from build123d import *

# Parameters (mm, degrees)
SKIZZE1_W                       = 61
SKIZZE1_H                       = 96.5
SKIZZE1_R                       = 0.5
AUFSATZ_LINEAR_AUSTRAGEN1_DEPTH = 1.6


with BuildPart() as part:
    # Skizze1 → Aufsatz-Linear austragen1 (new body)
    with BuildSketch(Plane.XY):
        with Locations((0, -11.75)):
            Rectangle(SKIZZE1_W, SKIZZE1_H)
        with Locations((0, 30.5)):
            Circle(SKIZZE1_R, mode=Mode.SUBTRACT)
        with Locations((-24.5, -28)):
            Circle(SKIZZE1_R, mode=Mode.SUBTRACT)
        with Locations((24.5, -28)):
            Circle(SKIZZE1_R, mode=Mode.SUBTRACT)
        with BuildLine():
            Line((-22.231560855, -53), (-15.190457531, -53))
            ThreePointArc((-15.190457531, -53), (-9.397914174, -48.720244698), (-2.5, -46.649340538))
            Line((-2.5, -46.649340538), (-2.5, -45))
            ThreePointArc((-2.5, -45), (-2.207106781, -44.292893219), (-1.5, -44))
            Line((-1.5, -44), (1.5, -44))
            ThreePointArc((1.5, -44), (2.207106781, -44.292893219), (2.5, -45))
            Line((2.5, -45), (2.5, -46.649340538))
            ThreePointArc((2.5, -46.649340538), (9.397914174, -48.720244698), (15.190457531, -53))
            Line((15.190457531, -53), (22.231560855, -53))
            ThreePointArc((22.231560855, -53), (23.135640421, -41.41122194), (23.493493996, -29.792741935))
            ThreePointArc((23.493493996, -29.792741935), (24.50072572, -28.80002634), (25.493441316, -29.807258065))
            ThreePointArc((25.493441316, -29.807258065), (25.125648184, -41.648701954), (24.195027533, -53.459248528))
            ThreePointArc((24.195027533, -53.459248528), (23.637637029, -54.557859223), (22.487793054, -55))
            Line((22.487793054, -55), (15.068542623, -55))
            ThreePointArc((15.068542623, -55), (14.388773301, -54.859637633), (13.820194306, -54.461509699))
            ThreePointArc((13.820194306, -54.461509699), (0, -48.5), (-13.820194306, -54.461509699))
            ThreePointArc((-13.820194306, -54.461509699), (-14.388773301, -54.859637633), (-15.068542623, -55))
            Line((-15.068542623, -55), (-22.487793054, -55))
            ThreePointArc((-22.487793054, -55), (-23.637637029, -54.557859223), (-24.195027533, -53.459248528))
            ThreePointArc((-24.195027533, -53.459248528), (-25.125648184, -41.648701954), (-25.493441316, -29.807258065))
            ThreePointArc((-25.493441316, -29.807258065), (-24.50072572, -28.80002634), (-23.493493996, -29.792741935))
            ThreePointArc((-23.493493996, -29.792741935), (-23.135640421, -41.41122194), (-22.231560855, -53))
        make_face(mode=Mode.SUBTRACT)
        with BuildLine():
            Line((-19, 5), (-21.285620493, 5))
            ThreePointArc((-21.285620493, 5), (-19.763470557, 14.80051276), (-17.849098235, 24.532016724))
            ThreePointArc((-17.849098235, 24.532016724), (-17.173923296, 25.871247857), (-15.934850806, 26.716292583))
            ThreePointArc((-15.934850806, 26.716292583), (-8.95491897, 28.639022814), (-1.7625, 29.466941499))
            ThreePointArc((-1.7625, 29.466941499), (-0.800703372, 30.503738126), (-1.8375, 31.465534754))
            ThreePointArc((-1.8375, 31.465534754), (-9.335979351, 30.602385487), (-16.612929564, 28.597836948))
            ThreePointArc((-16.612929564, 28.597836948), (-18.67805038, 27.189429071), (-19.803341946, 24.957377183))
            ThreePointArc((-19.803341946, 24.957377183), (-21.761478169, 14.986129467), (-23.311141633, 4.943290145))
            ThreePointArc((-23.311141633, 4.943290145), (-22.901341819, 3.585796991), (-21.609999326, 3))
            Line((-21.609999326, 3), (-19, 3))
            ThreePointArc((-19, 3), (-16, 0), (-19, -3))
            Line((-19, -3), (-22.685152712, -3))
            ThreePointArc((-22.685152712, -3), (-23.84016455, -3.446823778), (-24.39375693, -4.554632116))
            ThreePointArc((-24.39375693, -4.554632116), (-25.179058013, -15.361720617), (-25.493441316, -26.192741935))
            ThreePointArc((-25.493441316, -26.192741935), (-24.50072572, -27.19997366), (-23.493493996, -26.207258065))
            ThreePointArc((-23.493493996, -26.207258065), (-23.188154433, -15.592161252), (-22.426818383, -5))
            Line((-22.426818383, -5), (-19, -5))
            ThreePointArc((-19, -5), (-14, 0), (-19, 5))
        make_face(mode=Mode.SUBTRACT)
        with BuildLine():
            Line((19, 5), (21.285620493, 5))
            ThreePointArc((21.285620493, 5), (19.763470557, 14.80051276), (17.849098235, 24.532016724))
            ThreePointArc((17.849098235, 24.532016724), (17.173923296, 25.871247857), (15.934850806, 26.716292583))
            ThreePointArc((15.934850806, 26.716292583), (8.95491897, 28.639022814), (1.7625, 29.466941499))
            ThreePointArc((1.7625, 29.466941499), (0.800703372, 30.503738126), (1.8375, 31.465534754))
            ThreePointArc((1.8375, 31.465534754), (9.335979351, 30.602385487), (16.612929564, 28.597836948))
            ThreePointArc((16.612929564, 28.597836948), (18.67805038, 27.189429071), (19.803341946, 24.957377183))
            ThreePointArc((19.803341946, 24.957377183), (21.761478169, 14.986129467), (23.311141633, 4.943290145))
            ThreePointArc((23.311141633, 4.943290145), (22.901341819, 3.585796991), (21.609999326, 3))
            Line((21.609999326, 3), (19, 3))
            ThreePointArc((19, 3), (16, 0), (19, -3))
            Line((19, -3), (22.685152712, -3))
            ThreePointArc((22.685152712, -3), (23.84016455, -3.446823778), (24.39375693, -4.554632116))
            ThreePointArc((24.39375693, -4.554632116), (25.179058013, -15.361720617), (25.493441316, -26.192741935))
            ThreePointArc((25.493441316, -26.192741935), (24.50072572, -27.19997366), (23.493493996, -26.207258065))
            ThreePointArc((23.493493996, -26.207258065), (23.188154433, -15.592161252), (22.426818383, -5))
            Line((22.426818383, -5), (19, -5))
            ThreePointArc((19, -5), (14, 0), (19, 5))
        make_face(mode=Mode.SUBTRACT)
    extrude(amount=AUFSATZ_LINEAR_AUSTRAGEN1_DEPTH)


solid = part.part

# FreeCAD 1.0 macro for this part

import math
import FreeCAD as App
import Part
import Sketcher


def add_polygon(sketch, points):
    """Adds a closed chain of lines whose ends are joined by coincident constraints."""
    first, n = sketch.GeometryCount, len(points)
    for a, b in zip(points, points[1:] + points[:1]):
        sketch.addGeometry(Part.LineSegment(App.Vector(*a, 0), App.Vector(*b, 0)), False)
    for i in range(n):
        sketch.addConstraint(Sketcher.Constraint("Coincident", first + i, 2, first + (i + 1) % n, 1))

doc = App.newDocument("Part")
body = doc.addObject("PartDesign::Body", "Body")

# Sketch on XY plane
sketch1 = doc.addObject("Sketcher::SketchObject", "Sketch")
body.addObject(sketch1)
sketch1.AttachmentSupport = (doc.XY_Plane, [""])
sketch1.MapMode = "FlatFace"
add_polygon(sketch1, [(-30.5, 36.5), (-30.5, -60), (30.5, -60), (30.5, 36.5)])  # lines 0-3
sketch1.addGeometry(Part.ArcOfCircle(Part.Circle(App.Vector(223.5, -28, 0), App.Vector(0, 0, 1), 247), math.radians(-179.58), math.radians(-174.19)), False)  # 4
sketch1.addGeometry(Part.LineSegment(App.Vector(-22.2, -53, 0), App.Vector(-15.2, -53, 0)), False)  # 5
sketch1.addGeometry(Part.ArcOfCircle(Part.Circle(App.Vector(0, -67.5, 0), App.Vector(0, 0, 1), 21), math.radians(97), math.radians(136)), False)  # 6
sketch1.addGeometry(Part.LineSegment(App.Vector(-2.5, -46.6, 0), App.Vector(-2.5, -45, 0)), False)  # 7
sketch1.addGeometry(Part.ArcOfCircle(Part.Circle(App.Vector(-1.5, -45, 0), App.Vector(0, 0, 1), 1), math.radians(90), math.radians(180)), False)  # 8
sketch1.addGeometry(Part.LineSegment(App.Vector(-1.5, -44, 0), App.Vector(1.5, -44, 0)), False)  # 9
sketch1.addGeometry(Part.ArcOfCircle(Part.Circle(App.Vector(1.5, -45, 0), App.Vector(0, 0, 1), 1), math.radians(0), math.radians(90)), False)  # 10
sketch1.addGeometry(Part.LineSegment(App.Vector(2.5, -45, 0), App.Vector(2.5, -46.6, 0)), False)  # 11
sketch1.addGeometry(Part.ArcOfCircle(Part.Circle(App.Vector(0, -67.5, 0), App.Vector(0, 0, 1), 21), math.radians(44), math.radians(83)), False)  # 12
sketch1.addGeometry(Part.LineSegment(App.Vector(15.2, -53, 0), App.Vector(22.2, -53, 0)), False)  # 13
sketch1.addGeometry(Part.ArcOfCircle(Part.Circle(App.Vector(-223.5, -28, 0), App.Vector(0, 0, 1), 247), math.radians(-5.81), math.radians(-0.42)), False)  # 14
sketch1.addGeometry(Part.ArcOfCircle(Part.Circle(App.Vector(24.5, -29.8, 0), App.Vector(0, 0, 1), 1), math.radians(0), math.radians(180)), False)  # 15
sketch1.addGeometry(Part.ArcOfCircle(Part.Circle(App.Vector(-223.5, -28, 0), App.Vector(0, 0, 1), 249), math.radians(-5.87), math.radians(-0.42)), False)  # 16
sketch1.addGeometry(Part.ArcOfCircle(Part.Circle(App.Vector(22.5, -53.3, 0), App.Vector(0, 0, 1), 1.7), math.radians(-90), math.radians(-6)), False)  # 17
sketch1.addGeometry(Part.LineSegment(App.Vector(22.5, -55, 0), App.Vector(15.1, -55, 0)), False)  # 18
sketch1.addGeometry(Part.ArcOfCircle(Part.Circle(App.Vector(15.1, -53.3, 0), App.Vector(0, 0, 1), 1.7), math.radians(-137), math.radians(-90)), False)  # 19
sketch1.addGeometry(Part.ArcOfCircle(Part.Circle(App.Vector(0, -67.5, 0), App.Vector(0, 0, 1), 19), math.radians(43), math.radians(137)), False)  # 20
sketch1.addGeometry(Part.ArcOfCircle(Part.Circle(App.Vector(-15.1, -53.3, 0), App.Vector(0, 0, 1), 1.7), math.radians(-90), math.radians(-43)), False)  # 21
sketch1.addGeometry(Part.LineSegment(App.Vector(-15.1, -55, 0), App.Vector(-22.5, -55, 0)), False)  # 22
sketch1.addGeometry(Part.ArcOfCircle(Part.Circle(App.Vector(-22.5, -53.3, 0), App.Vector(0, 0, 1), 1.7), math.radians(-174), math.radians(-90)), False)  # 23
sketch1.addGeometry(Part.ArcOfCircle(Part.Circle(App.Vector(223.5, -28, 0), App.Vector(0, 0, 1), 249), math.radians(-179.58), math.radians(-174.13)), False)  # 24
sketch1.addGeometry(Part.ArcOfCircle(Part.Circle(App.Vector(-24.5, -29.8, 0), App.Vector(0, 0, 1), 1), math.radians(0), math.radians(180)), False)  # 25
sketch1.addGeometry(Part.Circle(App.Vector(-24.5, -28, 0), App.Vector(0, 0, 1), 0.5), False)  # 26
sketch1.addGeometry(Part.Circle(App.Vector(24.5, -28, 0), App.Vector(0, 0, 1), 0.5), False)  # 27
sketch1.addGeometry(Part.LineSegment(App.Vector(-21.3, 5, 0), App.Vector(-19, 5, 0)), False)  # 28
sketch1.addGeometry(Part.ArcOfCircle(Part.Circle(App.Vector(-19, 0, 0), App.Vector(0, 0, 1), 5), math.radians(-90), math.radians(90)), False)  # 29
sketch1.addGeometry(Part.LineSegment(App.Vector(-19, -5, 0), App.Vector(-22.4, -5, 0)), False)  # 30
sketch1.addGeometry(Part.ArcOfCircle(Part.Circle(App.Vector(223.5, -28, 0), App.Vector(0, 0, 1), 247), math.radians(174.66), math.radians(179.58)), False)  # 31
sketch1.addGeometry(Part.ArcOfCircle(Part.Circle(App.Vector(-24.5, -26.2, 0), App.Vector(0, 0, 1), 1), math.radians(180), math.radians(360)), False)  # 32
sketch1.addGeometry(Part.ArcOfCircle(Part.Circle(App.Vector(223.5, -28, 0), App.Vector(0, 0, 1), 249), math.radians(174.6), math.radians(179.58)), False)  # 33
sketch1.addGeometry(Part.ArcOfCircle(Part.Circle(App.Vector(-22.7, -4.7, 0), App.Vector(0, 0, 1), 1.7), math.radians(90), math.radians(175)), False)  # 34
sketch1.addGeometry(Part.LineSegment(App.Vector(-22.7, -3, 0), App.Vector(-19, -3, 0)), False)  # 35
sketch1.addGeometry(Part.ArcOfCircle(Part.Circle(App.Vector(-19, 0, 0), App.Vector(0, 0, 1), 3), math.radians(-90), math.radians(90)), False)  # 36
sketch1.addGeometry(Part.LineSegment(App.Vector(-19, 3, 0), App.Vector(-21.6, 3, 0)), False)  # 37
sketch1.addGeometry(Part.ArcOfCircle(Part.Circle(App.Vector(-21.6, 4.7, 0), App.Vector(0, 0, 1), 1.7), math.radians(172), math.radians(270)), False)  # 38
sketch1.addGeometry(Part.ArcOfCircle(Part.Circle(App.Vector(223.5, -28, 0), App.Vector(0, 0, 1), 249), math.radians(167.72), math.radians(172.4)), False)  # 39
sketch1.addGeometry(Part.ArcOfCircle(Part.Circle(App.Vector(-14.9, 23.9, 0), App.Vector(0, 0, 1), 5), math.radians(110), math.radians(168)), False)  # 40
sketch1.addGeometry(Part.ArcOfCircle(Part.Circle(App.Vector(0, -17.5, 0), App.Vector(0, 0, 1), 49), math.radians(92.15), math.radians(109.82)), False)  # 41
sketch1.addGeometry(Part.ArcOfCircle(Part.Circle(App.Vector(-1.8, 30.5, 0), App.Vector(0, 0, 1), 1), math.radians(-88), math.radians(92)), False)  # 42
sketch1.addGeometry(Part.ArcOfCircle(Part.Circle(App.Vector(0, -17.5, 0), App.Vector(0, 0, 1), 47), math.radians(92.15), math.radians(109.82)), False)  # 43
sketch1.addGeometry(Part.ArcOfCircle(Part.Circle(App.Vector(-14.9, 23.9, 0), App.Vector(0, 0, 1), 3), math.radians(110), math.radians(168)), False)  # 44
sketch1.addGeometry(Part.ArcOfCircle(Part.Circle(App.Vector(223.5, -28, 0), App.Vector(0, 0, 1), 247), math.radians(167.72), math.radians(172.32)), False)  # 45
sketch1.addGeometry(Part.ArcOfCircle(Part.Circle(App.Vector(19, 0, 0), App.Vector(0, 0, 1), 5), math.radians(90), math.radians(270)), False)  # 46
sketch1.addGeometry(Part.LineSegment(App.Vector(19, 5, 0), App.Vector(21.3, 5, 0)), False)  # 47
sketch1.addGeometry(Part.ArcOfCircle(Part.Circle(App.Vector(-223.5, -28, 0), App.Vector(0, 0, 1), 247), math.radians(7.68), math.radians(12.28)), False)  # 48
sketch1.addGeometry(Part.ArcOfCircle(Part.Circle(App.Vector(14.9, 23.9, 0), App.Vector(0, 0, 1), 3), math.radians(12), math.radians(70)), False)  # 49
sketch1.addGeometry(Part.ArcOfCircle(Part.Circle(App.Vector(0, -17.5, 0), App.Vector(0, 0, 1), 47), math.radians(70.18), math.radians(87.85)), False)  # 50
sketch1.addGeometry(Part.ArcOfCircle(Part.Circle(App.Vector(1.8, 30.5, 0), App.Vector(0, 0, 1), 1), math.radians(88), math.radians(268)), False)  # 51
sketch1.addGeometry(Part.ArcOfCircle(Part.Circle(App.Vector(0, -17.5, 0), App.Vector(0, 0, 1), 49), math.radians(70.18), math.radians(87.85)), False)  # 52
sketch1.addGeometry(Part.ArcOfCircle(Part.Circle(App.Vector(14.9, 23.9, 0), App.Vector(0, 0, 1), 5), math.radians(12), math.radians(70)), False)  # 53
sketch1.addGeometry(Part.ArcOfCircle(Part.Circle(App.Vector(-223.5, -28, 0), App.Vector(0, 0, 1), 249), math.radians(7.6), math.radians(12.28)), False)  # 54
sketch1.addGeometry(Part.ArcOfCircle(Part.Circle(App.Vector(21.6, 4.7, 0), App.Vector(0, 0, 1), 1.7), math.radians(-90), math.radians(8)), False)  # 55
sketch1.addGeometry(Part.LineSegment(App.Vector(21.6, 3, 0), App.Vector(19, 3, 0)), False)  # 56
sketch1.addGeometry(Part.ArcOfCircle(Part.Circle(App.Vector(19, 0, 0), App.Vector(0, 0, 1), 3), math.radians(90), math.radians(270)), False)  # 57
sketch1.addGeometry(Part.LineSegment(App.Vector(19, -3, 0), App.Vector(22.7, -3, 0)), False)  # 58
sketch1.addGeometry(Part.ArcOfCircle(Part.Circle(App.Vector(22.7, -4.7, 0), App.Vector(0, 0, 1), 1.7), math.radians(5), math.radians(90)), False)  # 59
sketch1.addGeometry(Part.ArcOfCircle(Part.Circle(App.Vector(-223.5, -28, 0), App.Vector(0, 0, 1), 249), math.radians(0.42), math.radians(5.4)), False)  # 60
sketch1.addGeometry(Part.ArcOfCircle(Part.Circle(App.Vector(24.5, -26.2, 0), App.Vector(0, 0, 1), 1), math.radians(-180), math.radians(0)), False)  # 61
sketch1.addGeometry(Part.ArcOfCircle(Part.Circle(App.Vector(-223.5, -28, 0), App.Vector(0, 0, 1), 247), math.radians(0.42), math.radians(5.34)), False)  # 62
sketch1.addGeometry(Part.LineSegment(App.Vector(22.4, -5, 0), App.Vector(19, -5, 0)), False)  # 63
sketch1.addGeometry(Part.Circle(App.Vector(0, 30.5, 0), App.Vector(0, 0, 1), 0.5), False)  # 64
sketch1.addConstraint(Sketcher.Constraint("Coincident", 4, 2, 5, 1))
sketch1.addConstraint(Sketcher.Constraint("Coincident", 5, 2, 6, 2))
sketch1.addConstraint(Sketcher.Constraint("Coincident", 6, 1, 7, 1))
sketch1.addConstraint(Sketcher.Constraint("Tangent", 7, 2, 8, 2))
sketch1.addConstraint(Sketcher.Constraint("Tangent", 8, 1, 9, 1))
sketch1.addConstraint(Sketcher.Constraint("Tangent", 9, 2, 10, 2))
sketch1.addConstraint(Sketcher.Constraint("Tangent", 10, 1, 11, 1))
sketch1.addConstraint(Sketcher.Constraint("Coincident", 11, 2, 12, 2))
sketch1.addConstraint(Sketcher.Constraint("Coincident", 12, 1, 13, 1))
sketch1.addConstraint(Sketcher.Constraint("Coincident", 13, 2, 14, 1))
sketch1.addConstraint(Sketcher.Constraint("Tangent", 14, 2, 15, 2))
sketch1.addConstraint(Sketcher.Constraint("Tangent", 15, 1, 16, 2))
sketch1.addConstraint(Sketcher.Constraint("Tangent", 16, 1, 17, 2))
sketch1.addConstraint(Sketcher.Constraint("Tangent", 17, 1, 18, 1))
sketch1.addConstraint(Sketcher.Constraint("Tangent", 18, 2, 19, 2))
sketch1.addConstraint(Sketcher.Constraint("Tangent", 19, 1, 20, 1))
sketch1.addConstraint(Sketcher.Constraint("Tangent", 20, 2, 21, 2))
sketch1.addConstraint(Sketcher.Constraint("Tangent", 21, 1, 22, 1))
sketch1.addConstraint(Sketcher.Constraint("Tangent", 22, 2, 23, 2))
sketch1.addConstraint(Sketcher.Constraint("Tangent", 23, 1, 24, 2))
sketch1.addConstraint(Sketcher.Constraint("Tangent", 24, 1, 25, 2))
sketch1.addConstraint(Sketcher.Constraint("Tangent", 25, 1, 4, 1))
sketch1.addConstraint(Sketcher.Constraint("Tangent", 28, 2, 29, 2))
sketch1.addConstraint(Sketcher.Constraint("Tangent", 29, 1, 30, 1))
sketch1.addConstraint(Sketcher.Constraint("Coincident", 30, 2, 31, 1))
sketch1.addConstraint(Sketcher.Constraint("Tangent", 31, 2, 32, 2))
sketch1.addConstraint(Sketcher.Constraint("Tangent", 32, 1, 33, 2))
sketch1.addConstraint(Sketcher.Constraint("Tangent", 33, 1, 34, 2))
sketch1.addConstraint(Sketcher.Constraint("Tangent", 34, 1, 35, 1))
sketch1.addConstraint(Sketcher.Constraint("Tangent", 35, 2, 36, 1))
sketch1.addConstraint(Sketcher.Constraint("Tangent", 36, 2, 37, 1))
sketch1.addConstraint(Sketcher.Constraint("Tangent", 37, 2, 38, 2))
sketch1.addConstraint(Sketcher.Constraint("Tangent", 38, 1, 39, 2))
sketch1.addConstraint(Sketcher.Constraint("Tangent", 39, 1, 40, 2))
sketch1.addConstraint(Sketcher.Constraint("Tangent", 40, 1, 41, 2))
sketch1.addConstraint(Sketcher.Constraint("Tangent", 41, 1, 42, 2))
sketch1.addConstraint(Sketcher.Constraint("Tangent", 42, 1, 43, 1))
sketch1.addConstraint(Sketcher.Constraint("Tangent", 43, 2, 44, 1))
sketch1.addConstraint(Sketcher.Constraint("Tangent", 44, 2, 45, 1))
sketch1.addConstraint(Sketcher.Constraint("Coincident", 45, 2, 28, 1))
sketch1.addConstraint(Sketcher.Constraint("Tangent", 46, 1, 47, 1))
sketch1.addConstraint(Sketcher.Constraint("Coincident", 47, 2, 48, 1))
sketch1.addConstraint(Sketcher.Constraint("Tangent", 48, 2, 49, 1))
sketch1.addConstraint(Sketcher.Constraint("Tangent", 49, 2, 50, 1))
sketch1.addConstraint(Sketcher.Constraint("Tangent", 50, 2, 51, 2))
sketch1.addConstraint(Sketcher.Constraint("Tangent", 51, 1, 52, 2))
sketch1.addConstraint(Sketcher.Constraint("Tangent", 52, 1, 53, 2))
sketch1.addConstraint(Sketcher.Constraint("Tangent", 53, 1, 54, 2))
sketch1.addConstraint(Sketcher.Constraint("Tangent", 54, 1, 55, 2))
sketch1.addConstraint(Sketcher.Constraint("Tangent", 55, 1, 56, 1))
sketch1.addConstraint(Sketcher.Constraint("Tangent", 56, 2, 57, 1))
sketch1.addConstraint(Sketcher.Constraint("Tangent", 57, 2, 58, 1))
sketch1.addConstraint(Sketcher.Constraint("Tangent", 58, 2, 59, 2))
sketch1.addConstraint(Sketcher.Constraint("Tangent", 59, 1, 60, 2))
sketch1.addConstraint(Sketcher.Constraint("Tangent", 60, 1, 61, 2))
sketch1.addConstraint(Sketcher.Constraint("Tangent", 61, 1, 62, 1))
sketch1.addConstraint(Sketcher.Constraint("Coincident", 62, 2, 63, 1))
sketch1.addConstraint(Sketcher.Constraint("Tangent", 63, 2, 46, 2))
sketch1.addConstraint(Sketcher.Constraint("Vertical", 0))
sketch1.addConstraint(Sketcher.Constraint("Horizontal", 1))
sketch1.addConstraint(Sketcher.Constraint("Vertical", 2))
sketch1.addConstraint(Sketcher.Constraint("Horizontal", 3))
sketch1.addConstraint(Sketcher.Constraint("Horizontal", 5))
sketch1.addConstraint(Sketcher.Constraint("Vertical", 7))
sketch1.addConstraint(Sketcher.Constraint("Horizontal", 9))
sketch1.addConstraint(Sketcher.Constraint("Vertical", 11))
sketch1.addConstraint(Sketcher.Constraint("Horizontal", 13))
sketch1.addConstraint(Sketcher.Constraint("Horizontal", 18))
sketch1.addConstraint(Sketcher.Constraint("Horizontal", 22))
sketch1.addConstraint(Sketcher.Constraint("Horizontal", 28))
sketch1.addConstraint(Sketcher.Constraint("Horizontal", 30))
sketch1.addConstraint(Sketcher.Constraint("Horizontal", 35))
sketch1.addConstraint(Sketcher.Constraint("Horizontal", 37))
sketch1.addConstraint(Sketcher.Constraint("Horizontal", 47))
sketch1.addConstraint(Sketcher.Constraint("Horizontal", 56))
sketch1.addConstraint(Sketcher.Constraint("Horizontal", 58))
sketch1.addConstraint(Sketcher.Constraint("Horizontal", 63))
sketch1.addConstraint(Sketcher.Constraint("Coincident", 12, 3, 6, 3))
sketch1.addConstraint(Sketcher.Constraint("Coincident", 16, 3, 14, 3))
sketch1.addConstraint(Sketcher.Constraint("Coincident", 20, 3, 6, 3))
sketch1.addConstraint(Sketcher.Constraint("Coincident", 24, 3, 4, 3))
sketch1.addConstraint(Sketcher.Constraint("Coincident", 31, 3, 4, 3))
sketch1.addConstraint(Sketcher.Constraint("Coincident", 33, 3, 4, 3))
sketch1.addConstraint(Sketcher.Constraint("Coincident", 36, 3, 29, 3))
sketch1.addConstraint(Sketcher.Constraint("Coincident", 39, 3, 4, 3))
sketch1.addConstraint(Sketcher.Constraint("Coincident", 43, 3, 41, 3))
sketch1.addConstraint(Sketcher.Constraint("Coincident", 44, 3, 40, 3))
sketch1.addConstraint(Sketcher.Constraint("Coincident", 45, 3, 4, 3))
sketch1.addConstraint(Sketcher.Constraint("Coincident", 48, 3, 14, 3))
sketch1.addConstraint(Sketcher.Constraint("Coincident", 50, 3, 41, 3))
sketch1.addConstraint(Sketcher.Constraint("Coincident", 52, 3, 41, 3))
sketch1.addConstraint(Sketcher.Constraint("Coincident", 53, 3, 49, 3))
sketch1.addConstraint(Sketcher.Constraint("Coincident", 54, 3, 14, 3))
sketch1.addConstraint(Sketcher.Constraint("Coincident", 57, 3, 46, 3))
sketch1.addConstraint(Sketcher.Constraint("Coincident", 60, 3, 14, 3))
sketch1.addConstraint(Sketcher.Constraint("Coincident", 62, 3, 14, 3))
sketch1.addConstraint(Sketcher.Constraint("Equal", 8, 10))
sketch1.addConstraint(Sketcher.Constraint("Equal", 6, 12))
sketch1.addConstraint(Sketcher.Constraint("Equal", 4, 14))
sketch1.addConstraint(Sketcher.Constraint("Equal", 10, 15))
sketch1.addConstraint(Sketcher.Constraint("Equal", 17, 19))
sketch1.addConstraint(Sketcher.Constraint("Equal", 19, 21))
sketch1.addConstraint(Sketcher.Constraint("Equal", 21, 23))
sketch1.addConstraint(Sketcher.Constraint("Equal", 16, 24))
sketch1.addConstraint(Sketcher.Constraint("Equal", 26, 27))
sketch1.addConstraint(Sketcher.Constraint("Equal", 14, 31))
sketch1.addConstraint(Sketcher.Constraint("Equal", 25, 32))
sketch1.addConstraint(Sketcher.Constraint("Equal", 23, 34))
sketch1.addConstraint(Sketcher.Constraint("Equal", 34, 38))
sketch1.addConstraint(Sketcher.Constraint("Equal", 33, 39))
sketch1.addConstraint(Sketcher.Constraint("Equal", 29, 40))
sketch1.addConstraint(Sketcher.Constraint("Equal", 32, 42))
sketch1.addConstraint(Sketcher.Constraint("Equal", 36, 44))
sketch1.addConstraint(Sketcher.Constraint("Equal", 40, 46))
sketch1.addConstraint(Sketcher.Constraint("Equal", 45, 48))
sketch1.addConstraint(Sketcher.Constraint("Equal", 44, 49))
sketch1.addConstraint(Sketcher.Constraint("Equal", 43, 50))
sketch1.addConstraint(Sketcher.Constraint("Equal", 42, 51))
sketch1.addConstraint(Sketcher.Constraint("Equal", 38, 55))
sketch1.addConstraint(Sketcher.Constraint("Equal", 49, 57))
sketch1.addConstraint(Sketcher.Constraint("Equal", 55, 59))
sketch1.addConstraint(Sketcher.Constraint("Equal", 54, 60))
sketch1.addConstraint(Sketcher.Constraint("Equal", 51, 61))
sketch1.addConstraint(Sketcher.Constraint("Equal", 27, 64))
sketch1.addConstraint(Sketcher.Constraint("Symmetric", 29, 3, 46, 3, -1, 1))
sketch1.addConstraint(Sketcher.Constraint("Symmetric", 4, 3, 14, 3, -2))
sketch1.addConstraint(Sketcher.Constraint("Symmetric", 19, 3, 21, 3, -2))
sketch1.addConstraint(Sketcher.Constraint("Symmetric", 26, 3, 27, 3, -2))
sketch1.addConstraint(Sketcher.Constraint("Symmetric", 42, 3, 51, 3, -2))
sketch1.addConstraint(Sketcher.Constraint("PointOnObject", 29, 3, -1))
sketch1.addConstraint(Sketcher.Constraint("PointOnObject", 64, 3, -2))
sketch1.addConstraint(Sketcher.Constraint("Horizontal", 15, 3, 25, 3))
sketch1.addConstraint(Sketcher.Constraint("Horizontal", 24, 3, 26, 3))
sketch1.addConstraint(Sketcher.Constraint("Horizontal", 32, 3, 61, 3))
sketch1.addConstraint(Sketcher.Constraint("Horizontal", 6, 1, 11, 2))
sketch1.addConstraint(Sketcher.Constraint("Horizontal", 5, 2, 12, 1))
sketch1.addConstraint(Sketcher.Constraint("Vertical", 25, 3, 32, 3))
sketch1.addConstraint(Sketcher.Constraint("Diameter", 26, 1.0))
sketch1.addConstraint(Sketcher.Constraint("Radius", 4, 247.000001))
sketch1.addConstraint(Sketcher.Constraint("Radius", 6, 21.0))
sketch1.addConstraint(Sketcher.Constraint("Radius", 8, 1.0))
sketch1.addConstraint(Sketcher.Constraint("Radius", 20, 19.0))
sketch1.addConstraint(Sketcher.Constraint("Radius", 29, 5.0))
sketch1.addConstraint(Sketcher.Constraint("Radius", 41, 49.0))
sketch1.addConstraint(Sketcher.Constraint("DistanceX", 1, 1, 1, 2, 61.0))
sketch1.addConstraint(Sketcher.Constraint("DistanceX", 9, 1, 9, 2, 3.0))
sketch1.addConstraint(Sketcher.Constraint("DistanceY", 0, 2, 0, 1, 96.5))
sketch1.addConstraint(Sketcher.Constraint("DistanceY", 4, 3, -1, 1, 28.0))
sketch1.addConstraint(Sketcher.Constraint("DistanceY", 8, 3, -1, 1, 45.0))
sketch1.addConstraint(Sketcher.Constraint("DistanceX", 29, 3, -1, 1, 19.0))
sketch1.addConstraint(Sketcher.Constraint("DistanceY", 0, 2, -1, 1, 60.0))
sketch1.addConstraint(Sketcher.Constraint("DistanceY", 5, 2, -1, 1, 53.0))
sketch1.addConstraint(Sketcher.Constraint("DistanceY", 17, 1, -1, 1, 55.0))
sketch1.addConstraint(Sketcher.Constraint("DistanceX", 37, 2, 37, 1, 2.609999))
sketch1.addConstraint(Sketcher.Constraint("DistanceX", -1, 1, 4, 3, 223.500001))
sketch1.addConstraint(Sketcher.Constraint("DistanceY", 6, 3, -1, 1, 67.5))
sketch1.addConstraint(Sketcher.Constraint("DistanceY", 15, 3, -1, 1, 29.8))
sketch1.addConstraint(Sketcher.Constraint("DistanceX", 26, 3, -1, 1, 24.5))
sketch1.addConstraint(Sketcher.Constraint("DistanceY", 41, 3, -1, 1, 17.5))
sketch1.addConstraint(Sketcher.Constraint("DistanceX", 42, 3, -1, 1, 1.8))
sketch1.addConstraint(Sketcher.Constraint("DistanceY", -1, 1, 64, 3, 30.5))
sketch1.addConstraint(Sketcher.Constraint("DistanceX", 0, 2, -1, 1, 30.5))
pad1 = doc.addObject("PartDesign::Pad", "Pad")
body.addObject(pad1)
pad1.Profile = sketch1
pad1.Length = 1.6

doc.recompute()
